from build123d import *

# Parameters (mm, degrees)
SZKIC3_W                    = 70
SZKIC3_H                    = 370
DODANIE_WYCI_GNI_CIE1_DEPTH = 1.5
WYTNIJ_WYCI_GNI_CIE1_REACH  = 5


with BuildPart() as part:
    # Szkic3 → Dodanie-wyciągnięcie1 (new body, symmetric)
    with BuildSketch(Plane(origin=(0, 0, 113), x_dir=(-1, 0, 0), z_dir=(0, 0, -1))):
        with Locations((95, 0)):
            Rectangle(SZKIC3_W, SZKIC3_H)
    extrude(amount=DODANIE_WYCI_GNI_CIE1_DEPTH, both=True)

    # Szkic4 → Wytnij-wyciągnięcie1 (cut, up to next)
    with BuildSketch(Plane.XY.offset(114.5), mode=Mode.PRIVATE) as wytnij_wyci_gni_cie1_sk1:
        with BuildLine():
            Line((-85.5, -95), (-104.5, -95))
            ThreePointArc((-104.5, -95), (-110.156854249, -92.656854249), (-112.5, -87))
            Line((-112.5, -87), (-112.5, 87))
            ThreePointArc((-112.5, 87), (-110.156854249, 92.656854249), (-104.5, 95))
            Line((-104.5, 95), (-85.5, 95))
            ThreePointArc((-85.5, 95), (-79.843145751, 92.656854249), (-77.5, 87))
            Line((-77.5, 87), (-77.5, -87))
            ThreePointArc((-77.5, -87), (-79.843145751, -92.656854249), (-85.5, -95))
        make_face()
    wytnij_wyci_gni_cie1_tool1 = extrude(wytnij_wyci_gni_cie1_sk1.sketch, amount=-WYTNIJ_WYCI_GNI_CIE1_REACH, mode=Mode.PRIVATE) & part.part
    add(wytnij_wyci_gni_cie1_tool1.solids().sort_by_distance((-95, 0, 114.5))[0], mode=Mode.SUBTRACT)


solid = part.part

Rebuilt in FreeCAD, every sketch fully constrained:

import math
import FreeCAD as App
import Part
import Sketcher
from FreeCAD import Vector
Q = App.Units.Quantity


def add_polygon(sketch, points):
    """Adds a closed chain of lines whose ends are joined by coincident constraints."""
    first, n = sketch.GeometryCount, len(points)
    for a, b in zip(points, points[1:] + points[:1]):
        sketch.addGeometry(Part.LineSegment(App.Vector(*a, 0), App.Vector(*b, 0)), False)
    for i in range(n):
        sketch.addConstraint(Sketcher.Constraint("Coincident", first + i, 2, first + (i + 1) % n, 1))

doc = App.newDocument("Part")
params = doc.addObject("Spreadsheet::Sheet", "Params")
for row, (alias, value) in enumerate([
    ("sketch1_width", "70 mm"),
    ("sketch1_height", "370 mm"),
    ("pad1_length", "3 mm"),
    ("sketch2_radius", "8 mm"),
    ("sketch2_width", "19 mm"),
    ("sketch2_height", "174 mm"),
], start=1):
    params.set(f"A{row}", alias)
    params.set(f"B{row}", "=" + value)
    params.setAlias(f"B{row}", alias)

body = doc.addObject("PartDesign::Body", "Body")

# Sketch on XY plane
sketch1 = body.newObject("Sketcher::SketchObject", "Sketch")
sketch1.AttachmentSupport = (doc.getObject("XY_Plane"), [""])
sketch1.MapMode = "FlatFace"
sketch1.AttachmentOffset = App.Placement(Vector(0, 0, 113), App.Rotation())
add_polygon(sketch1, [(-60, 185), (-60, -185), (-130, -185), (-130, 185)])  # lines 0-3
sketch1.addConstraint(Sketcher.Constraint("Vertical", 0))
sketch1.addConstraint(Sketcher.Constraint("Horizontal", 1))
sketch1.addConstraint(Sketcher.Constraint("Vertical", 2))
sketch1.addConstraint(Sketcher.Constraint("Horizontal", 3))
sketch1.addConstraint(Sketcher.Constraint("DistanceX", 1, 2, 1, 1, Q("70 mm")))
sketch1.addConstraint(Sketcher.Constraint("DistanceY", 0, 2, 0, 1, Q("370 mm")))
sketch1.addConstraint(Sketcher.Constraint("DistanceX", 0, 2, -1, 1, Q("60 mm")))
sketch1.addConstraint(Sketcher.Constraint("DistanceY", 0, 2, -1, 1, Q("185 mm")))
sketch1.setExpression("Constraints[8]", "Params.sketch1_width")
sketch1.setExpression("Constraints[9]", "Params.sketch1_height")
pad1 = body.newObject("PartDesign::Pad", "Pad")
pad1.Profile = sketch1
pad1.setExpression("Length", "Params.pad1_length")
pad1.Midplane = True

# Sketch on XY plane
sketch2 = body.newObject("Sketcher::SketchObject", "Sketch001")
sketch2.AttachmentSupport = (doc.getObject("XY_Plane"), [""])
sketch2.MapMode = "FlatFace"
sketch2.AttachmentOffset = App.Placement(Vector(0, 0, 114.5), App.Rotation())
sketch2.addGeometry(Part.LineSegment(Vector(-104.5, -95, 0), Vector(-85.5, -95, 0)), False)
sketch2.addGeometry(Part.ArcOfCircle(Part.Circle(Vector(-85.5, -87, 0), Vector(0, 0, 1), 8), math.radians(-90), math.radians(0)), False)
sketch2.addGeometry(Part.LineSegment(Vector(-77.5, -87, 0), Vector(-77.5, 87, 0)), False)
sketch2.addGeometry(Part.ArcOfCircle(Part.Circle(Vector(-85.5, 87, 0), Vector(0, 0, 1), 8), math.radians(0), math.radians(90)), False)
sketch2.addGeometry(Part.LineSegment(Vector(-85.5, 95, 0), Vector(-104.5, 95, 0)), False)
sketch2.addGeometry(Part.ArcOfCircle(Part.Circle(Vector(-104.5, 87, 0), Vector(0, 0, 1), 8), math.radians(90), math.radians(180)), False)
sketch2.addGeometry(Part.LineSegment(Vector(-112.5, 87, 0), Vector(-112.5, -87, 0)), False)
sketch2.addGeometry(Part.ArcOfCircle(Part.Circle(Vector(-104.5, -87, 0), Vector(0, 0, 1), 8), math.radians(-180), math.radians(-90)), False)
sketch2.addConstraint(Sketcher.Constraint("Tangent", 0, 2, 1, 1))
sketch2.addConstraint(Sketcher.Constraint("Tangent", 1, 2, 2, 1))
sketch2.addConstraint(Sketcher.Constraint("Tangent", 2, 2, 3, 1))
sketch2.addConstraint(Sketcher.Constraint("Tangent", 3, 2, 4, 1))
sketch2.addConstraint(Sketcher.Constraint("Tangent", 4, 2, 5, 1))
sketch2.addConstraint(Sketcher.Constraint("Tangent", 5, 2, 6, 1))
sketch2.addConstraint(Sketcher.Constraint("Tangent", 6, 2, 7, 1))
sketch2.addConstraint(Sketcher.Constraint("Tangent", 7, 2, 0, 1))
sketch2.addConstraint(Sketcher.Constraint("Horizontal", 0))
sketch2.addConstraint(Sketcher.Constraint("Vertical", 2))
sketch2.addConstraint(Sketcher.Constraint("Horizontal", 4))
sketch2.addConstraint(Sketcher.Constraint("Vertical", 6))
sketch2.addConstraint(Sketcher.Constraint("Equal", 1, 3))
sketch2.addConstraint(Sketcher.Constraint("Equal", 3, 5))
sketch2.addConstraint(Sketcher.Constraint("Equal", 5, 7))
sketch2.addConstraint(Sketcher.Constraint("Radius", 1, Q("8 mm")))
sketch2.addConstraint(Sketcher.Constraint("DistanceX", 0, 1, 0, 2, Q("19 mm")))
sketch2.addConstraint(Sketcher.Constraint("DistanceY", 2, 1, 2, 2, Q("174 mm")))
sketch2.addConstraint(Sketcher.Constraint("DistanceY", 1, 3, -1, 1, Q("87 mm")))
sketch2.addConstraint(Sketcher.Constraint("DistanceX", 1, 3, -1, 1, Q("85.5 mm")))
sketch2.setExpression("Constraints[15]", "Params.sketch2_radius")
sketch2.setExpression("Constraints[16]", "Params.sketch2_width")
sketch2.setExpression("Constraints[17]", "Params.sketch2_height")
pocket1 = body.newObject("PartDesign::Pocket", "Pocket")
pocket1.Profile = sketch2
pocket1.Type = "UpToFirst"

doc.recompute()
